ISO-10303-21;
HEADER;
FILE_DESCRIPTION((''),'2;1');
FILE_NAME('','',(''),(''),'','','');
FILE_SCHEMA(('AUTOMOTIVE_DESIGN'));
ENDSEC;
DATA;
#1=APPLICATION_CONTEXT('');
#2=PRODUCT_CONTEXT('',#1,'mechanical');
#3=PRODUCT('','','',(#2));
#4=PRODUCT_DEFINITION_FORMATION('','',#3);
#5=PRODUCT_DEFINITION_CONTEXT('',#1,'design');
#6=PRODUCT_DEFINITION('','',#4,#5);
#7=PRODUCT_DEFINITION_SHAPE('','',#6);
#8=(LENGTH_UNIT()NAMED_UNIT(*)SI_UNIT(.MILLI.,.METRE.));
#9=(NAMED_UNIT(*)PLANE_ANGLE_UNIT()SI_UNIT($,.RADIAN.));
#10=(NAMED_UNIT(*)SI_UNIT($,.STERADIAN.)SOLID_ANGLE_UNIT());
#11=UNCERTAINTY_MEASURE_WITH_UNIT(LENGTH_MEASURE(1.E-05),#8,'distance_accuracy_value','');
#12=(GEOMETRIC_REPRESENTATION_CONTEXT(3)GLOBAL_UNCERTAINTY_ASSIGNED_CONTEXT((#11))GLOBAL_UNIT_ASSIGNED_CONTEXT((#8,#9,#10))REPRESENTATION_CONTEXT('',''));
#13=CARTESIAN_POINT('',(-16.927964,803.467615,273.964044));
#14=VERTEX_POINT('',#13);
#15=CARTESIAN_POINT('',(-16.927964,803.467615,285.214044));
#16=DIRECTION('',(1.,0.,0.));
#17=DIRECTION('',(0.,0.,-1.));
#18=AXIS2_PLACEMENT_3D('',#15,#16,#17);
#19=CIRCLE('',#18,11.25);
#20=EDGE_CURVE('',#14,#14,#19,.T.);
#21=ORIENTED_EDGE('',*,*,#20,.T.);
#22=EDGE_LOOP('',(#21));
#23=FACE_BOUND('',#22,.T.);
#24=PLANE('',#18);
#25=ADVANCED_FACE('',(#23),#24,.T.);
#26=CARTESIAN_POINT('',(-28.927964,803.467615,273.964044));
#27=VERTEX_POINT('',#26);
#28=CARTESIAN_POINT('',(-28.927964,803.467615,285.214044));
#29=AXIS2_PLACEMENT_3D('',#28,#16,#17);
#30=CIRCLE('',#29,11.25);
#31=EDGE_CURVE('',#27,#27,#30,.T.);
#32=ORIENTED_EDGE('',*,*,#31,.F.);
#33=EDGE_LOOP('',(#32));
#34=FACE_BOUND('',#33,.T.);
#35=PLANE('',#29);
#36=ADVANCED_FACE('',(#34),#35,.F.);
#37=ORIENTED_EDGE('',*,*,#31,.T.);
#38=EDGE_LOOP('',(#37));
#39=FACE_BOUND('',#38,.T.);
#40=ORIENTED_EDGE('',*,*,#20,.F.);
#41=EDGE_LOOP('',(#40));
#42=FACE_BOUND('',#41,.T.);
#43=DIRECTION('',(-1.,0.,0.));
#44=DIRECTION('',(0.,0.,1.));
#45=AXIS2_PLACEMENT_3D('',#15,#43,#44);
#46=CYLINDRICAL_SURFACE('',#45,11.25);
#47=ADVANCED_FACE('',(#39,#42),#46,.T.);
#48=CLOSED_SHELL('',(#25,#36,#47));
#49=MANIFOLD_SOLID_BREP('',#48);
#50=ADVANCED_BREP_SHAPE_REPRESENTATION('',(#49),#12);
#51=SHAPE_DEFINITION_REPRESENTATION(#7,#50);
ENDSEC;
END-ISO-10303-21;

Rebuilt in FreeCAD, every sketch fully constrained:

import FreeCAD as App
import Part
import Sketcher
from FreeCAD import Vector

doc = App.newDocument("Part")
body = doc.addObject("PartDesign::Body", "Body")

sketch1 = body.newObject("Sketcher::SketchObject", "Sketch")
sketch1.AttachmentSupport = (doc.getObject("YZ_Plane"), [""])
sketch1.MapMode = "FlatFace"
sketch1.AttachmentOffset = App.Placement(Vector(0, 0, -28.927964), App.Rotation())
sketch1.addGeometry(Part.Circle(Vector(803.467615, 285.214044, 0), Vector(0, 0, 1), 11.25), False)
sketch1.addConstraint(Sketcher.Constraint("Diameter", 0, 22.5))
sketch1.addConstraint(Sketcher.Constraint("DistanceX", -1, 1, 0, 3, 803.467615))
sketch1.addConstraint(Sketcher.Constraint("DistanceY", -1, 1, 0, 3, 285.214044))
pad1 = body.newObject("PartDesign::Pad", "Pad")
pad1.Profile = sketch1
pad1.Length = 12

doc.recompute()
